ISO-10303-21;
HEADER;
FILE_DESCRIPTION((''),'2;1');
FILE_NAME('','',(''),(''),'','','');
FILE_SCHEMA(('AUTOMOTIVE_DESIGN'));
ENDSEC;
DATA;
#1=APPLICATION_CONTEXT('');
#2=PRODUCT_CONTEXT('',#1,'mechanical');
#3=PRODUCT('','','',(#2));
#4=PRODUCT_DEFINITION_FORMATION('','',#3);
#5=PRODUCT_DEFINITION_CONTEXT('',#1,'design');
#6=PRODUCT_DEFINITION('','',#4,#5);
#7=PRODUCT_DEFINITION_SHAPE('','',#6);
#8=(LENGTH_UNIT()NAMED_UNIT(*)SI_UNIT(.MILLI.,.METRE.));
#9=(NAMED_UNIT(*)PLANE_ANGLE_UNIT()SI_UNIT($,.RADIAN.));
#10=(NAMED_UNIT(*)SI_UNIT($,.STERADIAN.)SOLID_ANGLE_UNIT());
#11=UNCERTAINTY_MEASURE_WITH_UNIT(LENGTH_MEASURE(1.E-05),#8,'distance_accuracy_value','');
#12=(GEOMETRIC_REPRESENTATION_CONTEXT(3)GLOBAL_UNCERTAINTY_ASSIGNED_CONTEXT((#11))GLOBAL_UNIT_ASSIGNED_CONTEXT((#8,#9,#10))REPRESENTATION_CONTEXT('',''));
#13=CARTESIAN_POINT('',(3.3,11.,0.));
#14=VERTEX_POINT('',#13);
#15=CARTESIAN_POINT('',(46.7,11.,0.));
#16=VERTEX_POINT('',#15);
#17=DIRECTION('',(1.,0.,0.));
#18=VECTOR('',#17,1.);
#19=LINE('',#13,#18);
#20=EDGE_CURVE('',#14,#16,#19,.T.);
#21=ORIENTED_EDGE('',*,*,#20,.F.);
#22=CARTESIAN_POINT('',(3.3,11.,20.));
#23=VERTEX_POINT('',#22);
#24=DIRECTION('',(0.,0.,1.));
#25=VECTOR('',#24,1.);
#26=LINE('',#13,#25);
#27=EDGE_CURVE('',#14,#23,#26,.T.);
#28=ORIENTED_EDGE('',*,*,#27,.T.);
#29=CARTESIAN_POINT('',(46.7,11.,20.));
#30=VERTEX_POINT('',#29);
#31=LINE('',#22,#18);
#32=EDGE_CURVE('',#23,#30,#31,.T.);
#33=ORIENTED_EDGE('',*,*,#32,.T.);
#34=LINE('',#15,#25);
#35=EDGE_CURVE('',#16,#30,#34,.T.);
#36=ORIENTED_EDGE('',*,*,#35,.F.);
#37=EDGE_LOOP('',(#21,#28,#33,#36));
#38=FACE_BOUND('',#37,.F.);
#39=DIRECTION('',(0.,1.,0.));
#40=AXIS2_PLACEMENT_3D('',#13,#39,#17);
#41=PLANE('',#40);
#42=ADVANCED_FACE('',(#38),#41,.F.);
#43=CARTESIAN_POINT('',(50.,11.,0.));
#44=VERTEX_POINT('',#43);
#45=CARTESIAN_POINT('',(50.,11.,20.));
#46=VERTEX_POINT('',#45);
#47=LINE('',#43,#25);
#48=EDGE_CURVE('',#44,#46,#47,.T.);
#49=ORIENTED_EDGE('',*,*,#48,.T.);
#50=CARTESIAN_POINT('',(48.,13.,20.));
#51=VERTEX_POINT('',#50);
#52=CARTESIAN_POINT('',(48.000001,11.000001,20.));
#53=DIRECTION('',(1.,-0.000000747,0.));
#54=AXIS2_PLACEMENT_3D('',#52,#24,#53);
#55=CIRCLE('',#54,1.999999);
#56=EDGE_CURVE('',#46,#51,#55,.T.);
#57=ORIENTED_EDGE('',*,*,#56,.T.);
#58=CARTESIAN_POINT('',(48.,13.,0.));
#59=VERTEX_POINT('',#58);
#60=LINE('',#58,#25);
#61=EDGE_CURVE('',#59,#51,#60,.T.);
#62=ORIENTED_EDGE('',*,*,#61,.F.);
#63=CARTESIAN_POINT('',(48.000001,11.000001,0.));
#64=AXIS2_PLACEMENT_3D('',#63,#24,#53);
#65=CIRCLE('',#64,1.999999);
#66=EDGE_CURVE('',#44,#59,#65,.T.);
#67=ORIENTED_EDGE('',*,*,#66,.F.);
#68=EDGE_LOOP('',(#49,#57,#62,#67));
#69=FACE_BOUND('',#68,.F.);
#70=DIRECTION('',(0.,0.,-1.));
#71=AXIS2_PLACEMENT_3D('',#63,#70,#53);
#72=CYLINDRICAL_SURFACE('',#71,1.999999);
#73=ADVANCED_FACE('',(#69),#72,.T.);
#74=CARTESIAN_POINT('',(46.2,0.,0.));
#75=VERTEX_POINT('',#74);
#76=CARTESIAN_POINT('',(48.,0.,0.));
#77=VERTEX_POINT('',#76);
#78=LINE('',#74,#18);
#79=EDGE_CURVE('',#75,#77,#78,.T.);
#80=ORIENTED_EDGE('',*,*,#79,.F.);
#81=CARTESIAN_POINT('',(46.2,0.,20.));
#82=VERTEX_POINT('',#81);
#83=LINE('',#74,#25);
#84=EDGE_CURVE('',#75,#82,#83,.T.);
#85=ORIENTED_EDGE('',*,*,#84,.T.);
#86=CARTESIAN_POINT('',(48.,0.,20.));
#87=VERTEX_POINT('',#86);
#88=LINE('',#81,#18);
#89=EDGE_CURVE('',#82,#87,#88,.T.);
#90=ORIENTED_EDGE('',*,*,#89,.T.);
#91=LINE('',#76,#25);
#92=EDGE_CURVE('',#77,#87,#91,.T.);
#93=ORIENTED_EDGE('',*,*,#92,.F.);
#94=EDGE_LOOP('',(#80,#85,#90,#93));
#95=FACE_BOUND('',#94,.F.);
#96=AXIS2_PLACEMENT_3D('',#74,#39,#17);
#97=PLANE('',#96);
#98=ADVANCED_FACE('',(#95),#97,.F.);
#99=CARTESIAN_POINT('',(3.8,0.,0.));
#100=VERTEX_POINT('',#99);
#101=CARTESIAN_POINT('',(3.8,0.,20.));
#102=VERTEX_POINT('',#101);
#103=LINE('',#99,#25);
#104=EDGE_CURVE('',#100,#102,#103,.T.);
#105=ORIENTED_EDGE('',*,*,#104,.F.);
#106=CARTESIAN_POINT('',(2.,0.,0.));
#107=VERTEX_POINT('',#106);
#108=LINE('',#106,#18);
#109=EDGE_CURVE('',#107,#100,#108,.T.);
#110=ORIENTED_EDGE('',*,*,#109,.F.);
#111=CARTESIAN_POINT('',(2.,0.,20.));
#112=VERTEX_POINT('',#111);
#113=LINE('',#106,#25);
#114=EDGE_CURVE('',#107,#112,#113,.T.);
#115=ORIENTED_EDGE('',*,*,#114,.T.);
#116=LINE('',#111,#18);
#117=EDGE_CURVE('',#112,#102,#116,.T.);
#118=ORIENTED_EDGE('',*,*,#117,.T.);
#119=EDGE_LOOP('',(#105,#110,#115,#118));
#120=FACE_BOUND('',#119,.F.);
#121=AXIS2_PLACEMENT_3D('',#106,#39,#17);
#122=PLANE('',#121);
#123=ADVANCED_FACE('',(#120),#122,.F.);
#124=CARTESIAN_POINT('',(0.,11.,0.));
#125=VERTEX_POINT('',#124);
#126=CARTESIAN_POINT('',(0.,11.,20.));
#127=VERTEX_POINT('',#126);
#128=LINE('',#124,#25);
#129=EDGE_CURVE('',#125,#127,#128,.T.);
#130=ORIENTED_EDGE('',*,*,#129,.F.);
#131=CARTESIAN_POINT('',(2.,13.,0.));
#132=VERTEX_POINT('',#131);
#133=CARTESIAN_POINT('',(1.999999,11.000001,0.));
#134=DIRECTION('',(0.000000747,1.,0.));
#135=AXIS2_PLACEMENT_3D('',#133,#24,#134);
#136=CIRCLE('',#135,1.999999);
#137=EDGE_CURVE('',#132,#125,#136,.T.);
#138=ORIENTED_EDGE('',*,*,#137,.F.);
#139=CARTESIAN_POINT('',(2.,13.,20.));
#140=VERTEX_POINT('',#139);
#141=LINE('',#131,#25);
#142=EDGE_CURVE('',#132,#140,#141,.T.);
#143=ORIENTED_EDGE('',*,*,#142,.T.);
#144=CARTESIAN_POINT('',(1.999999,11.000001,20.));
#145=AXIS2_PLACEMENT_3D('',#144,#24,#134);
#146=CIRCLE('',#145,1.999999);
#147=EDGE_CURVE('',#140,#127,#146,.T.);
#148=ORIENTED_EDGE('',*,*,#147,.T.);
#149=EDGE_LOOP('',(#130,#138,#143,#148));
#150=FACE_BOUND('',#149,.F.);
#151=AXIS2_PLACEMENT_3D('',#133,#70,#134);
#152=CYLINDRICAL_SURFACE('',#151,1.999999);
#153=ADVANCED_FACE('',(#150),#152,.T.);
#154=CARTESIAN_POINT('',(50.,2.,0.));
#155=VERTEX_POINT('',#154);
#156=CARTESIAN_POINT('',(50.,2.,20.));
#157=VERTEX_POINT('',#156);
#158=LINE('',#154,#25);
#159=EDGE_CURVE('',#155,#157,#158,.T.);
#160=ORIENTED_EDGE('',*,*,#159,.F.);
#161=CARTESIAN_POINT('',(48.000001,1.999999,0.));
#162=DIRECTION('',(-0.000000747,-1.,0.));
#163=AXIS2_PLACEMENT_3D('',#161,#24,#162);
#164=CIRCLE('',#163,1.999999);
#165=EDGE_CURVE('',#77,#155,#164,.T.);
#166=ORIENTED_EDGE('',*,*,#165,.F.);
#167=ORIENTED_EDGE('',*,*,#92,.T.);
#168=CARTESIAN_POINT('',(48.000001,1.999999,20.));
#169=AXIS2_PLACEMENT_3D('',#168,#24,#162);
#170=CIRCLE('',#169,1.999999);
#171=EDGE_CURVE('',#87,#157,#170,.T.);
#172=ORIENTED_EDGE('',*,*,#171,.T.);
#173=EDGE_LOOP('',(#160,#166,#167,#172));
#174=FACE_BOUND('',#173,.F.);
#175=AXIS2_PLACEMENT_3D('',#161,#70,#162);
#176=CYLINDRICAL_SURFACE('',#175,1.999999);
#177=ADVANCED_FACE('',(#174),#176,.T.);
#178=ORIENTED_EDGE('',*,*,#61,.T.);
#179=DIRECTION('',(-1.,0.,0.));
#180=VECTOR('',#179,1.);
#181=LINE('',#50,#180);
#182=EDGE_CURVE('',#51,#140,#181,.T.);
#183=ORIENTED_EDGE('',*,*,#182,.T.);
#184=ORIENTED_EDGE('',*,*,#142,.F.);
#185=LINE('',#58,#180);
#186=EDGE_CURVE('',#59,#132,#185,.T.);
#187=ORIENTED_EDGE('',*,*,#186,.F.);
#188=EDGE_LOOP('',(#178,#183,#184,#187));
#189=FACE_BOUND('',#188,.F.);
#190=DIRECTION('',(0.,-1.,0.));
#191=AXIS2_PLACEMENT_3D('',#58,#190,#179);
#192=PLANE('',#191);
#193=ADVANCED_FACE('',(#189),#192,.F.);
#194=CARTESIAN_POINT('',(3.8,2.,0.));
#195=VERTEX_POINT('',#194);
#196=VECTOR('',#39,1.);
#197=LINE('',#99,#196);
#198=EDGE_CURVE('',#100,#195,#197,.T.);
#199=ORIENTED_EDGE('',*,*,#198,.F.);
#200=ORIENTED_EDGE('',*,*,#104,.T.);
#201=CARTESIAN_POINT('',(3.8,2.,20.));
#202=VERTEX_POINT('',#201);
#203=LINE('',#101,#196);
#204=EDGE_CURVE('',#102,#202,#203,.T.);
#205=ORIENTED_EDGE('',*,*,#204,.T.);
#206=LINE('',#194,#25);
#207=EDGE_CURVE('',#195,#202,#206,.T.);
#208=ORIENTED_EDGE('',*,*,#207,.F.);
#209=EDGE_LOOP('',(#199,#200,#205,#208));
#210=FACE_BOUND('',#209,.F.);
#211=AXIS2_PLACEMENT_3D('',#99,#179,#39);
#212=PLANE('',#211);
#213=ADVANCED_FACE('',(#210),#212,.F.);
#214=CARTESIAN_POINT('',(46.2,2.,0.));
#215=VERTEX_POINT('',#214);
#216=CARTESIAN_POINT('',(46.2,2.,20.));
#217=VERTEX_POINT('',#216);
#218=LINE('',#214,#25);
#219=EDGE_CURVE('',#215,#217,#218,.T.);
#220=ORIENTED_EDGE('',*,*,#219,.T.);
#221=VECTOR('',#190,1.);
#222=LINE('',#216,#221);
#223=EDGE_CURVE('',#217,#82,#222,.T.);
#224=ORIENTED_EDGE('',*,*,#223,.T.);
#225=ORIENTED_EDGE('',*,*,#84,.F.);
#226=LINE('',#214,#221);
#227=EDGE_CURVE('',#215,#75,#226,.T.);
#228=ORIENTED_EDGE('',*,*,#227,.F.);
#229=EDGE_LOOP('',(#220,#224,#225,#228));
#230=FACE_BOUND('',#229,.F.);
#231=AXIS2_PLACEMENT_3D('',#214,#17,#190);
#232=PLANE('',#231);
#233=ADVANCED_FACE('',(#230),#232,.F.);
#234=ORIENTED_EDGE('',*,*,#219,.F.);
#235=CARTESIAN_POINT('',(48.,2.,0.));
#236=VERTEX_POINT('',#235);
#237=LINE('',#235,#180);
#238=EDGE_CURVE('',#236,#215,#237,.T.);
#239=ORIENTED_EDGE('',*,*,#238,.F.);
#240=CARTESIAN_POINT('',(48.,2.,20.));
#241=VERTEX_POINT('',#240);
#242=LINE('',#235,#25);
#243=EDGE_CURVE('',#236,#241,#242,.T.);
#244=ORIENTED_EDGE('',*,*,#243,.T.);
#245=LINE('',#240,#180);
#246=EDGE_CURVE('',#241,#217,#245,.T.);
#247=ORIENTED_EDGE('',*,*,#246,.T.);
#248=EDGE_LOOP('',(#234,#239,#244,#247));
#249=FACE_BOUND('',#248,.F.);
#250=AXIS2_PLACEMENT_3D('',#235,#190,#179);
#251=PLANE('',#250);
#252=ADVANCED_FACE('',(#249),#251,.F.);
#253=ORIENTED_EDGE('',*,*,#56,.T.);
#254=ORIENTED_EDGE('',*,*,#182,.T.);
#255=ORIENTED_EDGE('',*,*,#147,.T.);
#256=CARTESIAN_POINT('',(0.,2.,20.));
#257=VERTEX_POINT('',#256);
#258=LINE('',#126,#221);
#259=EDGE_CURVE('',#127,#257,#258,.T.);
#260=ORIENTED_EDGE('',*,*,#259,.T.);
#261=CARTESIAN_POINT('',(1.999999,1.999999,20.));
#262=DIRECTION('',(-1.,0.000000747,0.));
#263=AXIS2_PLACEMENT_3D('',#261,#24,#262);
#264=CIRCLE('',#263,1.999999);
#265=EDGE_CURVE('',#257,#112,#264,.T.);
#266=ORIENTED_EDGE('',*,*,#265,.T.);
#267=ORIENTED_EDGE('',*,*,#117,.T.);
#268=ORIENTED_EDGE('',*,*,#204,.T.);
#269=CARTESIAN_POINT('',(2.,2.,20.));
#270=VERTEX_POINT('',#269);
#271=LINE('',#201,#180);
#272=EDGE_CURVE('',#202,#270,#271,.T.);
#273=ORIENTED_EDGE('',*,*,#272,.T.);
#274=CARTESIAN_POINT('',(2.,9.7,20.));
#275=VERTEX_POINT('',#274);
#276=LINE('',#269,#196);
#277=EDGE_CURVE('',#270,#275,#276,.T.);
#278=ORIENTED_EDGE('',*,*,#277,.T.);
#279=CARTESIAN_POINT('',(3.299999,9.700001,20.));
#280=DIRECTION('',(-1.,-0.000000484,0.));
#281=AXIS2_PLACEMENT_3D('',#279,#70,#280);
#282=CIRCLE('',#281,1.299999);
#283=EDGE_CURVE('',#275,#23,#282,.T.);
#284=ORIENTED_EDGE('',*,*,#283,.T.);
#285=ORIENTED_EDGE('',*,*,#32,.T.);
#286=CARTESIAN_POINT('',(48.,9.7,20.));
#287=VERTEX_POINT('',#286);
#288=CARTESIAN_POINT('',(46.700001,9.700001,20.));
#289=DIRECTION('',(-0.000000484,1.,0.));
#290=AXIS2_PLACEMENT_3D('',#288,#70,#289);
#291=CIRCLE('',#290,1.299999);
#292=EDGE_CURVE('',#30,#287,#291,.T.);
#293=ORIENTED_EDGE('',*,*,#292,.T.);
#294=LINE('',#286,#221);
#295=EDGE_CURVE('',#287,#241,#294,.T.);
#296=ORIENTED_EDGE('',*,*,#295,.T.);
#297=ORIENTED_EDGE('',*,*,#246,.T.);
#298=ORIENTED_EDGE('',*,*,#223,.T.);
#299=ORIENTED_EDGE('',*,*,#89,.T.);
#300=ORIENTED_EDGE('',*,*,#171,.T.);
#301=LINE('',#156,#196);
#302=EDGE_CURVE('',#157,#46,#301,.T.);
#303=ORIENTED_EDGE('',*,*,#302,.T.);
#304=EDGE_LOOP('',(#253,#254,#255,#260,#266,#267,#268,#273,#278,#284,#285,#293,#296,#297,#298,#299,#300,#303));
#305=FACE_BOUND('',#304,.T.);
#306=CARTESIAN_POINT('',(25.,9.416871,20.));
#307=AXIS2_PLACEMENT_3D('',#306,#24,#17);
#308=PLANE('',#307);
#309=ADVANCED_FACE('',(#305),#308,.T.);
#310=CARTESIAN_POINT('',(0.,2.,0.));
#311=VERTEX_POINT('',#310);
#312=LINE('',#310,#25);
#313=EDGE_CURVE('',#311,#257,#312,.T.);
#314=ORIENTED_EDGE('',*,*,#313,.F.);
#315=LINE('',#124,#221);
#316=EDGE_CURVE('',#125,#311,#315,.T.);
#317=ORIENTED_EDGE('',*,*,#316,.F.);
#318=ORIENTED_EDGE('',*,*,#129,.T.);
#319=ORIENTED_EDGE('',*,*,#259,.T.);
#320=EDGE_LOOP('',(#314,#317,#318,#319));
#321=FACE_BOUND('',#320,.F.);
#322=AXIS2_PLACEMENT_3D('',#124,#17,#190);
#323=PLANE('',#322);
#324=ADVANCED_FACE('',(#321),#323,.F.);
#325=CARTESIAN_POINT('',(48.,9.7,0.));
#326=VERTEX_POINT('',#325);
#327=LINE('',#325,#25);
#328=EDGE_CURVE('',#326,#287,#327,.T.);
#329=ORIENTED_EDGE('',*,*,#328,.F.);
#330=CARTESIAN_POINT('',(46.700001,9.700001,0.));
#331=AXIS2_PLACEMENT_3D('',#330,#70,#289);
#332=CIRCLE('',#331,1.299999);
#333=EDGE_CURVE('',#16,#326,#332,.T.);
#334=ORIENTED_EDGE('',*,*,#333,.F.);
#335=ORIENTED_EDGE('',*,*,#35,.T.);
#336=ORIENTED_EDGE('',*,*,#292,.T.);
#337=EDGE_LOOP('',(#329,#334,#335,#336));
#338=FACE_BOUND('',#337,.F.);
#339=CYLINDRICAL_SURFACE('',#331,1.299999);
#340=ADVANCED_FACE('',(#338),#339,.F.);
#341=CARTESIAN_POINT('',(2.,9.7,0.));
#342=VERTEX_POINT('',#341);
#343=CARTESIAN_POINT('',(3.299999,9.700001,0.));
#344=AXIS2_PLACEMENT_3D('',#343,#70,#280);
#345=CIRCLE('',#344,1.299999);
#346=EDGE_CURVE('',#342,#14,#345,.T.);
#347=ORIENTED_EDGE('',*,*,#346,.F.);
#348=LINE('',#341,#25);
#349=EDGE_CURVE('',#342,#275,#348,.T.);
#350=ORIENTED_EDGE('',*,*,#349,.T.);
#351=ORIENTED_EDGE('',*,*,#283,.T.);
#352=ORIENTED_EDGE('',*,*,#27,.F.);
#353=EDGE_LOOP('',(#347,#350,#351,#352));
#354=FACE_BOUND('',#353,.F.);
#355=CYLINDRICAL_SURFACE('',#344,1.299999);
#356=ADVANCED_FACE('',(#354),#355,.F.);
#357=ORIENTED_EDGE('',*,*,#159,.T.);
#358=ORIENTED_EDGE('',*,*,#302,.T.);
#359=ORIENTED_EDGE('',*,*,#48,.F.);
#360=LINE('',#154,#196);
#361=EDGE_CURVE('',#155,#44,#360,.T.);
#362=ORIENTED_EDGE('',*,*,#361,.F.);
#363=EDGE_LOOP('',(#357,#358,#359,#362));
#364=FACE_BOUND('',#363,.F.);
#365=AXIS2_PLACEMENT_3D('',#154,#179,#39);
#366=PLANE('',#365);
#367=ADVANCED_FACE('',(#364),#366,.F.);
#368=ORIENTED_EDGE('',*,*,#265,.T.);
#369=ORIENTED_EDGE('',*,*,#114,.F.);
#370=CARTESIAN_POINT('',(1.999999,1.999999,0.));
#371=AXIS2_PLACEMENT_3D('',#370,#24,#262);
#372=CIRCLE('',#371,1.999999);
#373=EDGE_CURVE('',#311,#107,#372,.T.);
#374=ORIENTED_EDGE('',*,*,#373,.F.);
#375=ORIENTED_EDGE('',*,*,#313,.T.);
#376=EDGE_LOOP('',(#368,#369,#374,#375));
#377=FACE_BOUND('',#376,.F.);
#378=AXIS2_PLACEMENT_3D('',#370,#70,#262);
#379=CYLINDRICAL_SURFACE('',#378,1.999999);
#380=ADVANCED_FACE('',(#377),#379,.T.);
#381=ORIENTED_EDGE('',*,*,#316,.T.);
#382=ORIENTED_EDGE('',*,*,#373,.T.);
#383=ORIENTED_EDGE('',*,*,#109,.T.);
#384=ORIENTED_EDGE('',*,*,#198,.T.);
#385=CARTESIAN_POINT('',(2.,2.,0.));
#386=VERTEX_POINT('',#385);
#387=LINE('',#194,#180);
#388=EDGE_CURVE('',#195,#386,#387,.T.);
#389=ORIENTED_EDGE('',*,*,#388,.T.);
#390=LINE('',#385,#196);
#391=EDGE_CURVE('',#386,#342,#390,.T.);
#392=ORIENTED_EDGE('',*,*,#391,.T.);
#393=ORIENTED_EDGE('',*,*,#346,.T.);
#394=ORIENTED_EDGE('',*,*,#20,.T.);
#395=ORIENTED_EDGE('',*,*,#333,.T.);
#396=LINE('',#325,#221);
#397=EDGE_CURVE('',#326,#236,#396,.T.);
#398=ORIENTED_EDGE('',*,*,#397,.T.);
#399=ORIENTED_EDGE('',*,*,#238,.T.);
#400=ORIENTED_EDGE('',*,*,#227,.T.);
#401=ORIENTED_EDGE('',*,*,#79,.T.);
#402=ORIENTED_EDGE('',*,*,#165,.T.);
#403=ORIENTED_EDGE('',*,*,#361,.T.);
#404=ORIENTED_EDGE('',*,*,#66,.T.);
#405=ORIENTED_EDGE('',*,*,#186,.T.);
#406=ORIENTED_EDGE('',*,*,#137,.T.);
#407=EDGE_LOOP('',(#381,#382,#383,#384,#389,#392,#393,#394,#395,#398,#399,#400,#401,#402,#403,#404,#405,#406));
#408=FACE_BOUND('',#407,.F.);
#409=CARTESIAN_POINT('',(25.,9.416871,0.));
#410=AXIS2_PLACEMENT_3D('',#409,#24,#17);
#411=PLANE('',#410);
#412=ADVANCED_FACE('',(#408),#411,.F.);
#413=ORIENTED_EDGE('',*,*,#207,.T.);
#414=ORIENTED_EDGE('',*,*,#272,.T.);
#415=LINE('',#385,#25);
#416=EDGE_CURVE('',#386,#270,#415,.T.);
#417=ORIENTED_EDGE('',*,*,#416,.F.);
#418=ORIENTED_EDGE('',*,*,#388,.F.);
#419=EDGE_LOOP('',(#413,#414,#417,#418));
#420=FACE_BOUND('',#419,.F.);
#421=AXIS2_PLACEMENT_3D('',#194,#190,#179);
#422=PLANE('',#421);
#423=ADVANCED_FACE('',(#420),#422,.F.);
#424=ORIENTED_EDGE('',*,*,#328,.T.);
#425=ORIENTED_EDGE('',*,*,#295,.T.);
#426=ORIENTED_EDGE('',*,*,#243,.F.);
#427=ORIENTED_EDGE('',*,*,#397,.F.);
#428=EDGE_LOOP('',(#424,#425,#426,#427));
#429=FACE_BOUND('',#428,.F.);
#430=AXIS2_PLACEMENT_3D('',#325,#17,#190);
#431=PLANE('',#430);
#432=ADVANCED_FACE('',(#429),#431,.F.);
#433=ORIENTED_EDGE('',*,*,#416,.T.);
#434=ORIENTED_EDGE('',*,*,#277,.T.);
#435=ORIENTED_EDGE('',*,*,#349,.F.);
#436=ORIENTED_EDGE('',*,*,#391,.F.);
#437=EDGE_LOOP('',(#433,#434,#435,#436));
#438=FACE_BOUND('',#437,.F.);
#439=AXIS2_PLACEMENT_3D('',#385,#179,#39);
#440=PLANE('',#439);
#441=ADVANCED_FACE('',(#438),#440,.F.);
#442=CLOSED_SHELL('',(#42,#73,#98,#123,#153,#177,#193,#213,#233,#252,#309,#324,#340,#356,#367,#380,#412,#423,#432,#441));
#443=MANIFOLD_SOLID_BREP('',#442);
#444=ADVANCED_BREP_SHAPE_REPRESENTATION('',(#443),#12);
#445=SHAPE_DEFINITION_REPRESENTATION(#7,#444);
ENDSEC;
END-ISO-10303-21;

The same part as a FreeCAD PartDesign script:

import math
import FreeCAD as App
import Part
import Sketcher
from FreeCAD import Vector

doc = App.newDocument("Part")
params = doc.addObject("Spreadsheet::Sheet", "Params")
for row, (alias, value) in enumerate([
    ("sketch1_radius", "1.999999 mm"),
    ("sketch1_radius2", "1.299999 mm"),
    ("sketch1_width", "46 mm"),
    ("sketch1_height", "9 mm"),
    ("sketch1_width2", "1.8 mm"),
    ("pad1_length", "20 mm"),
], start=1):
    params.set(f"A{row}", alias)
    params.set(f"B{row}", "=" + value)
    params.setAlias(f"B{row}", alias)

body = doc.addObject("PartDesign::Body", "Body")

# Sketch on XY plane
sketch1 = body.newObject("Sketcher::SketchObject", "Sketch")
sketch1.AttachmentSupport = (doc.getObject("XY_Plane"), [""])
sketch1.MapMode = "FlatFace"
sketch1.addGeometry(Part.ArcOfCircle(Part.Circle(Vector(1.999999, 1.999999, 0), Vector(0, 0, 1), 1.999999), math.radians(179.999957), math.radians(270.000043)), False)
sketch1.addGeometry(Part.LineSegment(Vector(2, 0, 0), Vector(3.8, 0, 0)), False)
sketch1.addGeometry(Part.LineSegment(Vector(3.8, 0, 0), Vector(3.8, 2, 0)), False)
sketch1.addGeometry(Part.LineSegment(Vector(3.8, 2, 0), Vector(2, 2, 0)), False)
sketch1.addGeometry(Part.LineSegment(Vector(2, 2, 0), Vector(2, 9.7, 0)), False)
sketch1.addGeometry(Part.ArcOfCircle(Part.Circle(Vector(3.299999, 9.700001, 0), Vector(0, 0, 1), 1.299999), math.radians(89.999972), math.radians(180.000028)), False)
sketch1.addGeometry(Part.LineSegment(Vector(3.3, 11, 0), Vector(46.7, 11, 0)), False)
sketch1.addGeometry(Part.ArcOfCircle(Part.Circle(Vector(46.700001, 9.700001, 0), Vector(0, 0, 1), 1.299999), math.radians(-0.000028), math.radians(90.000028)), False)
sketch1.addGeometry(Part.LineSegment(Vector(48, 9.7, 0), Vector(48, 2, 0)), False)
sketch1.addGeometry(Part.LineSegment(Vector(48, 2, 0), Vector(46.2, 2, 0)), False)
sketch1.addGeometry(Part.LineSegment(Vector(46.2, 2, 0), Vector(46.2, 0, 0)), False)
sketch1.addGeometry(Part.LineSegment(Vector(46.2, 0, 0), Vector(48, 0, 0)), False)
sketch1.addGeometry(Part.ArcOfCircle(Part.Circle(Vector(48.000001, 1.999999, 0), Vector(0, 0, 1), 1.999999), math.radians(-90.000043), math.radians(0.000043)), False)
sketch1.addGeometry(Part.LineSegment(Vector(50, 2, 0), Vector(50, 11, 0)), False)
sketch1.addGeometry(Part.ArcOfCircle(Part.Circle(Vector(48.000001, 11.000001, 0), Vector(0, 0, 1), 1.999999), math.radians(-0.000043), math.radians(90.000043)), False)
sketch1.addGeometry(Part.LineSegment(Vector(48, 13, 0), Vector(2, 13, 0)), False)
sketch1.addGeometry(Part.ArcOfCircle(Part.Circle(Vector(1.999999, 11.000001, 0), Vector(0, 0, 1), 1.999999), math.radians(89.999957), math.radians(180.000043)), False)
sketch1.addGeometry(Part.LineSegment(Vector(0, 11, 0), Vector(0, 2, 0)), False)
sketch1.addConstraint(Sketcher.Constraint("Tangent", 0, 2, 1, 1))
sketch1.addConstraint(Sketcher.Constraint("Coincident", 1, 2, 2, 1))
sketch1.addConstraint(Sketcher.Constraint("Coincident", 2, 2, 3, 1))
sketch1.addConstraint(Sketcher.Constraint("Coincident", 3, 2, 4, 1))
sketch1.addConstraint(Sketcher.Constraint("Tangent", 4, 2, 5, 2))
sketch1.addConstraint(Sketcher.Constraint("Tangent", 5, 1, 6, 1))
sketch1.addConstraint(Sketcher.Constraint("Tangent", 6, 2, 7, 2))
sketch1.addConstraint(Sketcher.Constraint("Tangent", 7, 1, 8, 1))
sketch1.addConstraint(Sketcher.Constraint("Coincident", 8, 2, 9, 1))
sketch1.addConstraint(Sketcher.Constraint("Coincident", 9, 2, 10, 1))
sketch1.addConstraint(Sketcher.Constraint("Coincident", 10, 2, 11, 1))
sketch1.addConstraint(Sketcher.Constraint("Tangent", 11, 2, 12, 1))
sketch1.addConstraint(Sketcher.Constraint("Tangent", 12, 2, 13, 1))
sketch1.addConstraint(Sketcher.Constraint("Tangent", 13, 2, 14, 1))
sketch1.addConstraint(Sketcher.Constraint("Tangent", 14, 2, 15, 1))
sketch1.addConstraint(Sketcher.Constraint("Tangent", 15, 2, 16, 1))
sketch1.addConstraint(Sketcher.Constraint("Tangent", 16, 2, 17, 1))
sketch1.addConstraint(Sketcher.Constraint("Tangent", 17, 2, 0, 1))
sketch1.addConstraint(Sketcher.Constraint("Horizontal", 1))
sketch1.addConstraint(Sketcher.Constraint("Vertical", 2))
sketch1.addConstraint(Sketcher.Constraint("Horizontal", 3))
sketch1.addConstraint(Sketcher.Constraint("Vertical", 4))
sketch1.addConstraint(Sketcher.Constraint("Horizontal", 6))
sketch1.addConstraint(Sketcher.Constraint("Vertical", 8))
sketch1.addConstraint(Sketcher.Constraint("Horizontal", 9))
sketch1.addConstraint(Sketcher.Constraint("Vertical", 10))
sketch1.addConstraint(Sketcher.Constraint("Horizontal", 11))
sketch1.addConstraint(Sketcher.Constraint("Vertical", 13))
sketch1.addConstraint(Sketcher.Constraint("Horizontal", 15))
sketch1.addConstraint(Sketcher.Constraint("Vertical", 17))
sketch1.addConstraint(Sketcher.Constraint("Coincident", 3, 2, 0, 3))
sketch1.addConstraint(Sketcher.Constraint("Coincident", 8, 2, 12, 3))
sketch1.addConstraint(Sketcher.Constraint("Equal", 5, 7))
sketch1.addConstraint(Sketcher.Constraint("Equal", 0, 12))
sketch1.addConstraint(Sketcher.Constraint("Equal", 12, 14))
sketch1.addConstraint(Sketcher.Constraint("Equal", 14, 16))
sketch1.addConstraint(Sketcher.Constraint("PointOnObject", 0, 2, -1))
sketch1.addConstraint(Sketcher.Constraint("PointOnObject", 10, 2, -1))
sketch1.addConstraint(Sketcher.Constraint("PointOnObject", 16, 2, -2))
sketch1.addConstraint(Sketcher.Constraint("Horizontal", 16, 3, 5, 1))
sketch1.addConstraint(Sketcher.Constraint("Equal", 3, 9))
sketch1.addConstraint(Sketcher.Constraint("Radius", 0, 1.999999))
sketch1.addConstraint(Sketcher.Constraint("Radius", 5, 1.299999))
sketch1.addConstraint(Sketcher.Constraint("DistanceX", 15, 2, 15, 1, 46.0))
sketch1.addConstraint(Sketcher.Constraint("DistanceY", 13, 1, 13, 2, 9.0))
sketch1.addConstraint(Sketcher.Constraint("DistanceX", 1, 1, 1, 2, 1.8))
sketch1.setExpression("Constraints[41]", "Params.sketch1_radius")
sketch1.setExpression("Constraints[42]", "Params.sketch1_radius2")
sketch1.setExpression("Constraints[43]", "Params.sketch1_width")
sketch1.setExpression("Constraints[44]", "Params.sketch1_height")
sketch1.setExpression("Constraints[45]", "Params.sketch1_width2")
pad1 = body.newObject("PartDesign::Pad", "Pad")
pad1.Profile = sketch1
pad1.setExpression("Length", "Params.pad1_length")

doc.recompute()
